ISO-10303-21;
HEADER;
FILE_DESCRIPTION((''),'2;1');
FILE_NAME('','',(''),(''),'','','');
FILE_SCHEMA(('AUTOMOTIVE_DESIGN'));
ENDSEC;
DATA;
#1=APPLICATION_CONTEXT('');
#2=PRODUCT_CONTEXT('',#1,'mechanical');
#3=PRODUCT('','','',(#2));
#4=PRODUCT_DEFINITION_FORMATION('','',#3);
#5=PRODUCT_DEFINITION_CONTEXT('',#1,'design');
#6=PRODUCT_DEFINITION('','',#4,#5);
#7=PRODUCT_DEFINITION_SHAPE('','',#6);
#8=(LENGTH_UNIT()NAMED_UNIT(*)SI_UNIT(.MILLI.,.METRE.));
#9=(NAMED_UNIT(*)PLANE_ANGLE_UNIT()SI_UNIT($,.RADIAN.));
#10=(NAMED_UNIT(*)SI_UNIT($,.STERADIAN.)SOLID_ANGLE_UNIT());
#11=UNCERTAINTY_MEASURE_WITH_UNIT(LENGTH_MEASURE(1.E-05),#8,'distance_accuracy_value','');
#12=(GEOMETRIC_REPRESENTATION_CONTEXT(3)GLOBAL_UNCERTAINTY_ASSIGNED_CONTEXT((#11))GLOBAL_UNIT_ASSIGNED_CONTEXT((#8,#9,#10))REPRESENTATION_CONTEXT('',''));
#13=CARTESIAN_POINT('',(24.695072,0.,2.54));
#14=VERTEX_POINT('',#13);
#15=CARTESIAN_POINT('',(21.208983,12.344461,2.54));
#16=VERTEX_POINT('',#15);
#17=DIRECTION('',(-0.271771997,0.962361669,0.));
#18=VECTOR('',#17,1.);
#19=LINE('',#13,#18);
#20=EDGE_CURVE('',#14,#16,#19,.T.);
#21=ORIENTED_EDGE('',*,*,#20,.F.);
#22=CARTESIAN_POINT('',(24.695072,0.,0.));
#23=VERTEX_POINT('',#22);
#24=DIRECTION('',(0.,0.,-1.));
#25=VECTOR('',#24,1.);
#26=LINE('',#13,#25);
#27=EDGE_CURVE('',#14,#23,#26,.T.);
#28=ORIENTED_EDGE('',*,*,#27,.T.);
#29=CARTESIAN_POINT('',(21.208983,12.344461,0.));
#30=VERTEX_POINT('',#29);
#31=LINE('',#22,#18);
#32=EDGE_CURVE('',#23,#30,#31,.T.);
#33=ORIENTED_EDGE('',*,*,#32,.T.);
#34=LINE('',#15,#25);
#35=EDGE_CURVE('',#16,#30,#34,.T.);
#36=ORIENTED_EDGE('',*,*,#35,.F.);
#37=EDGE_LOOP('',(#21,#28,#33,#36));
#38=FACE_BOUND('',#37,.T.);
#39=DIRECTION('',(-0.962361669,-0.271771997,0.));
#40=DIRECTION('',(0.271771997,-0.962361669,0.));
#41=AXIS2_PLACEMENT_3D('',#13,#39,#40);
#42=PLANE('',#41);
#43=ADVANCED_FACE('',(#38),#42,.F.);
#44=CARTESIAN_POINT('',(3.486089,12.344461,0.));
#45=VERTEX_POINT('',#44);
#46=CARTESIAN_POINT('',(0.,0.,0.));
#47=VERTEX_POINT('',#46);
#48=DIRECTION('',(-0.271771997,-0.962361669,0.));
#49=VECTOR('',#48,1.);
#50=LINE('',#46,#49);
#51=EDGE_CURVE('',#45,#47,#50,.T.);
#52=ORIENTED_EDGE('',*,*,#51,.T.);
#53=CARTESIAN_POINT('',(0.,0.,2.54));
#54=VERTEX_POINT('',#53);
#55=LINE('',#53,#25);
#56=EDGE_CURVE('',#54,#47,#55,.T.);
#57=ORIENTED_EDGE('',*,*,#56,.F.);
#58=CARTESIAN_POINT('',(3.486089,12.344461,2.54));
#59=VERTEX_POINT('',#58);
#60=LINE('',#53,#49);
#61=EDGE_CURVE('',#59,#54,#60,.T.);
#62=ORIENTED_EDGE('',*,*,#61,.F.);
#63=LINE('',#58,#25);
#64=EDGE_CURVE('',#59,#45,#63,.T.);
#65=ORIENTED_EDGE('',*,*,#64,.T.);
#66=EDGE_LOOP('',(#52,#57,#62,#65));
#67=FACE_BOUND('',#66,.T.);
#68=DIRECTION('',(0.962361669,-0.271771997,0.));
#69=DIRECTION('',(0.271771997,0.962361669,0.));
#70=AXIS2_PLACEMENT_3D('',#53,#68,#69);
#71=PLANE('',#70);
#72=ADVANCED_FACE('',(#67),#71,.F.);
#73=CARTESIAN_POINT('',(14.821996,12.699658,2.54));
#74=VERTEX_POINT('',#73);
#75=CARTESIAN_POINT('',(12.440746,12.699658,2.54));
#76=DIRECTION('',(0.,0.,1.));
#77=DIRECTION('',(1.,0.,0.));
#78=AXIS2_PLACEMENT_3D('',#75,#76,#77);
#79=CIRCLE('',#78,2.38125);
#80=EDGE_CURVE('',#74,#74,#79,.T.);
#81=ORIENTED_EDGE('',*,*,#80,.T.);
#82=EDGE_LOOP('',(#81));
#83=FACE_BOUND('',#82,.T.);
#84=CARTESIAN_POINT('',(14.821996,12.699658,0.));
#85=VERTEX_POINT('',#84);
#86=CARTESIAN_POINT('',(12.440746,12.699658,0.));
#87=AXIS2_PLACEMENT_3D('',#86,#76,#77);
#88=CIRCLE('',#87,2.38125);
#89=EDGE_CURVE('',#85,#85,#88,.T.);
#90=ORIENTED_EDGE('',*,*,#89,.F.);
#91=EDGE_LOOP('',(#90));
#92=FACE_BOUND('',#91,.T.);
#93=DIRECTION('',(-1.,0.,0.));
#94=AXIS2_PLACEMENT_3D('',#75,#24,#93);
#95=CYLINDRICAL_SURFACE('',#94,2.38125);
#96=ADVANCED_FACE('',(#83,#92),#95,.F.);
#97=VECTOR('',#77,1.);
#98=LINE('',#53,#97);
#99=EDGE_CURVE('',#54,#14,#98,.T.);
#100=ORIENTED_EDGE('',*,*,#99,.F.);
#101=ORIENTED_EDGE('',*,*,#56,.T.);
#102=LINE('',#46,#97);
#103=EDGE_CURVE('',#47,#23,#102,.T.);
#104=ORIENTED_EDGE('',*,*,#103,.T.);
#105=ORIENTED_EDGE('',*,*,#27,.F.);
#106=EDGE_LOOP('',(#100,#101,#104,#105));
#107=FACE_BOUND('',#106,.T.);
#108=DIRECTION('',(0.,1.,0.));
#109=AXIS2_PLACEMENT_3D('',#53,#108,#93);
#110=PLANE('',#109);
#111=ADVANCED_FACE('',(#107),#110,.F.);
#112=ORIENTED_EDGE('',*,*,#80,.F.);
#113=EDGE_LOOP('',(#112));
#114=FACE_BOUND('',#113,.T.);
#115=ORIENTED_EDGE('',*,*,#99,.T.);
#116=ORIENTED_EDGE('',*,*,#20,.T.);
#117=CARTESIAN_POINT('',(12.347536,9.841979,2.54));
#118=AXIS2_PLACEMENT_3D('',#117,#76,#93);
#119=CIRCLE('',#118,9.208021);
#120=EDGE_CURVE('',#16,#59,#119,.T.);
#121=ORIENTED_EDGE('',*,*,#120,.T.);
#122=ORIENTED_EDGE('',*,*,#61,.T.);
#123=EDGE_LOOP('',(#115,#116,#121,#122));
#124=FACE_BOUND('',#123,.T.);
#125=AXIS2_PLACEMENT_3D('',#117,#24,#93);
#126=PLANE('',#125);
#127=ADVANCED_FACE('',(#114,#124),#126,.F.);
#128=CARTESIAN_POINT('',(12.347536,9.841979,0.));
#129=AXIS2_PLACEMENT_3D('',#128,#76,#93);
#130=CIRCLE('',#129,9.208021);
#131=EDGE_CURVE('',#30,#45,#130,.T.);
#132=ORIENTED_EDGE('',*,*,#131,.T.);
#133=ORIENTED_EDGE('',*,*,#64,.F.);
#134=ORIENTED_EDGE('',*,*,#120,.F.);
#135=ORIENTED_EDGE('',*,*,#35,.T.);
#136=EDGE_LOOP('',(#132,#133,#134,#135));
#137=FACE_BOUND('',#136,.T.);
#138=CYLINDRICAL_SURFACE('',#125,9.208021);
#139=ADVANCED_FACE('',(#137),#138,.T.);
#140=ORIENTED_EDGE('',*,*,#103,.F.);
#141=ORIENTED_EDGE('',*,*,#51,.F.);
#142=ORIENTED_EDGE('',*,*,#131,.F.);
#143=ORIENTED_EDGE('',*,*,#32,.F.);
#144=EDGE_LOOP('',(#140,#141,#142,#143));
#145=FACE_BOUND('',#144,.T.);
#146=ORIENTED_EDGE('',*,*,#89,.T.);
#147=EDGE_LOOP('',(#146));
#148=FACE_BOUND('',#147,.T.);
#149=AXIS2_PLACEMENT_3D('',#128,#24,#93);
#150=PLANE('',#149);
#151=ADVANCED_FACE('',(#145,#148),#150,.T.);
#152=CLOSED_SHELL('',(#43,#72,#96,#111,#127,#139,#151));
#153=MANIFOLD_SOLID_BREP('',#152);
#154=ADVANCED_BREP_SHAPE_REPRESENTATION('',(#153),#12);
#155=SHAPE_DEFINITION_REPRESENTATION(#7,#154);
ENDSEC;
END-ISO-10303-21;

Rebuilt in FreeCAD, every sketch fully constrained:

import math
import FreeCAD as App
import Part
import Sketcher
Q = App.Units.Quantity

doc = App.newDocument("Part")
body = doc.addObject("PartDesign::Body", "Body")

sketch1 = doc.addObject("Sketcher::SketchObject", "Sketch")
body.addObject(sketch1)
sketch1.AttachmentSupport = (doc.XY_Plane, [""])
sketch1.MapMode = "FlatFace"
sketch1.addGeometry([
    Part.LineSegment(App.Vector(0, 0, 0), App.Vector(24.7, 0, 0)),
    Part.LineSegment(App.Vector(24.7, 0, 0), App.Vector(21.2, 12.3, 0)),
    Part.ArcOfCircle(Part.Circle(App.Vector(12.3, 9.8, 0), App.Vector(0, 0, 1), 9.2), math.radians(16), math.radians(164)),
    Part.LineSegment(App.Vector(3.5, 12.3, 0), App.Vector(0, 0, 0)),
    Part.Circle(App.Vector(12.4, 12.7, 0), App.Vector(0, 0, 1), 2.4),
], False)
sketch1.addConstraint([
    Sketcher.Constraint("Coincident", 0, 2, 1, 1),
    Sketcher.Constraint("Tangent", 1, 2, 2, 1),
    Sketcher.Constraint("Tangent", 2, 2, 3, 1),
    Sketcher.Constraint("Coincident", 3, 2, 0, 1),
    Sketcher.Constraint("Horizontal", 0),
    Sketcher.Constraint("Coincident", 3, 2, -1, 1),
    Sketcher.Constraint("Horizontal", 1, 2, 2, 2),
    Sketcher.Constraint("Diameter", 4, Q("0.1875 in")),
    Sketcher.Constraint("Radius", 2, 9.208021),
    Sketcher.Constraint("DistanceX", 0, 1, 0, 2, 24.695072),
    Sketcher.Constraint("DistanceY", -1, 1, 2, 3, 9.841979),
    Sketcher.Constraint("DistanceX", 2, 3, 4, 3, 0.09321),
    Sketcher.Constraint("DistanceY", 2, 3, 4, 3, 2.857679),
])
pad1 = doc.addObject("PartDesign::Pad", "Pad")
body.addObject(pad1)
pad1.Profile = sketch1
pad1.Length = Q("0.1 in")

doc.recompute()
